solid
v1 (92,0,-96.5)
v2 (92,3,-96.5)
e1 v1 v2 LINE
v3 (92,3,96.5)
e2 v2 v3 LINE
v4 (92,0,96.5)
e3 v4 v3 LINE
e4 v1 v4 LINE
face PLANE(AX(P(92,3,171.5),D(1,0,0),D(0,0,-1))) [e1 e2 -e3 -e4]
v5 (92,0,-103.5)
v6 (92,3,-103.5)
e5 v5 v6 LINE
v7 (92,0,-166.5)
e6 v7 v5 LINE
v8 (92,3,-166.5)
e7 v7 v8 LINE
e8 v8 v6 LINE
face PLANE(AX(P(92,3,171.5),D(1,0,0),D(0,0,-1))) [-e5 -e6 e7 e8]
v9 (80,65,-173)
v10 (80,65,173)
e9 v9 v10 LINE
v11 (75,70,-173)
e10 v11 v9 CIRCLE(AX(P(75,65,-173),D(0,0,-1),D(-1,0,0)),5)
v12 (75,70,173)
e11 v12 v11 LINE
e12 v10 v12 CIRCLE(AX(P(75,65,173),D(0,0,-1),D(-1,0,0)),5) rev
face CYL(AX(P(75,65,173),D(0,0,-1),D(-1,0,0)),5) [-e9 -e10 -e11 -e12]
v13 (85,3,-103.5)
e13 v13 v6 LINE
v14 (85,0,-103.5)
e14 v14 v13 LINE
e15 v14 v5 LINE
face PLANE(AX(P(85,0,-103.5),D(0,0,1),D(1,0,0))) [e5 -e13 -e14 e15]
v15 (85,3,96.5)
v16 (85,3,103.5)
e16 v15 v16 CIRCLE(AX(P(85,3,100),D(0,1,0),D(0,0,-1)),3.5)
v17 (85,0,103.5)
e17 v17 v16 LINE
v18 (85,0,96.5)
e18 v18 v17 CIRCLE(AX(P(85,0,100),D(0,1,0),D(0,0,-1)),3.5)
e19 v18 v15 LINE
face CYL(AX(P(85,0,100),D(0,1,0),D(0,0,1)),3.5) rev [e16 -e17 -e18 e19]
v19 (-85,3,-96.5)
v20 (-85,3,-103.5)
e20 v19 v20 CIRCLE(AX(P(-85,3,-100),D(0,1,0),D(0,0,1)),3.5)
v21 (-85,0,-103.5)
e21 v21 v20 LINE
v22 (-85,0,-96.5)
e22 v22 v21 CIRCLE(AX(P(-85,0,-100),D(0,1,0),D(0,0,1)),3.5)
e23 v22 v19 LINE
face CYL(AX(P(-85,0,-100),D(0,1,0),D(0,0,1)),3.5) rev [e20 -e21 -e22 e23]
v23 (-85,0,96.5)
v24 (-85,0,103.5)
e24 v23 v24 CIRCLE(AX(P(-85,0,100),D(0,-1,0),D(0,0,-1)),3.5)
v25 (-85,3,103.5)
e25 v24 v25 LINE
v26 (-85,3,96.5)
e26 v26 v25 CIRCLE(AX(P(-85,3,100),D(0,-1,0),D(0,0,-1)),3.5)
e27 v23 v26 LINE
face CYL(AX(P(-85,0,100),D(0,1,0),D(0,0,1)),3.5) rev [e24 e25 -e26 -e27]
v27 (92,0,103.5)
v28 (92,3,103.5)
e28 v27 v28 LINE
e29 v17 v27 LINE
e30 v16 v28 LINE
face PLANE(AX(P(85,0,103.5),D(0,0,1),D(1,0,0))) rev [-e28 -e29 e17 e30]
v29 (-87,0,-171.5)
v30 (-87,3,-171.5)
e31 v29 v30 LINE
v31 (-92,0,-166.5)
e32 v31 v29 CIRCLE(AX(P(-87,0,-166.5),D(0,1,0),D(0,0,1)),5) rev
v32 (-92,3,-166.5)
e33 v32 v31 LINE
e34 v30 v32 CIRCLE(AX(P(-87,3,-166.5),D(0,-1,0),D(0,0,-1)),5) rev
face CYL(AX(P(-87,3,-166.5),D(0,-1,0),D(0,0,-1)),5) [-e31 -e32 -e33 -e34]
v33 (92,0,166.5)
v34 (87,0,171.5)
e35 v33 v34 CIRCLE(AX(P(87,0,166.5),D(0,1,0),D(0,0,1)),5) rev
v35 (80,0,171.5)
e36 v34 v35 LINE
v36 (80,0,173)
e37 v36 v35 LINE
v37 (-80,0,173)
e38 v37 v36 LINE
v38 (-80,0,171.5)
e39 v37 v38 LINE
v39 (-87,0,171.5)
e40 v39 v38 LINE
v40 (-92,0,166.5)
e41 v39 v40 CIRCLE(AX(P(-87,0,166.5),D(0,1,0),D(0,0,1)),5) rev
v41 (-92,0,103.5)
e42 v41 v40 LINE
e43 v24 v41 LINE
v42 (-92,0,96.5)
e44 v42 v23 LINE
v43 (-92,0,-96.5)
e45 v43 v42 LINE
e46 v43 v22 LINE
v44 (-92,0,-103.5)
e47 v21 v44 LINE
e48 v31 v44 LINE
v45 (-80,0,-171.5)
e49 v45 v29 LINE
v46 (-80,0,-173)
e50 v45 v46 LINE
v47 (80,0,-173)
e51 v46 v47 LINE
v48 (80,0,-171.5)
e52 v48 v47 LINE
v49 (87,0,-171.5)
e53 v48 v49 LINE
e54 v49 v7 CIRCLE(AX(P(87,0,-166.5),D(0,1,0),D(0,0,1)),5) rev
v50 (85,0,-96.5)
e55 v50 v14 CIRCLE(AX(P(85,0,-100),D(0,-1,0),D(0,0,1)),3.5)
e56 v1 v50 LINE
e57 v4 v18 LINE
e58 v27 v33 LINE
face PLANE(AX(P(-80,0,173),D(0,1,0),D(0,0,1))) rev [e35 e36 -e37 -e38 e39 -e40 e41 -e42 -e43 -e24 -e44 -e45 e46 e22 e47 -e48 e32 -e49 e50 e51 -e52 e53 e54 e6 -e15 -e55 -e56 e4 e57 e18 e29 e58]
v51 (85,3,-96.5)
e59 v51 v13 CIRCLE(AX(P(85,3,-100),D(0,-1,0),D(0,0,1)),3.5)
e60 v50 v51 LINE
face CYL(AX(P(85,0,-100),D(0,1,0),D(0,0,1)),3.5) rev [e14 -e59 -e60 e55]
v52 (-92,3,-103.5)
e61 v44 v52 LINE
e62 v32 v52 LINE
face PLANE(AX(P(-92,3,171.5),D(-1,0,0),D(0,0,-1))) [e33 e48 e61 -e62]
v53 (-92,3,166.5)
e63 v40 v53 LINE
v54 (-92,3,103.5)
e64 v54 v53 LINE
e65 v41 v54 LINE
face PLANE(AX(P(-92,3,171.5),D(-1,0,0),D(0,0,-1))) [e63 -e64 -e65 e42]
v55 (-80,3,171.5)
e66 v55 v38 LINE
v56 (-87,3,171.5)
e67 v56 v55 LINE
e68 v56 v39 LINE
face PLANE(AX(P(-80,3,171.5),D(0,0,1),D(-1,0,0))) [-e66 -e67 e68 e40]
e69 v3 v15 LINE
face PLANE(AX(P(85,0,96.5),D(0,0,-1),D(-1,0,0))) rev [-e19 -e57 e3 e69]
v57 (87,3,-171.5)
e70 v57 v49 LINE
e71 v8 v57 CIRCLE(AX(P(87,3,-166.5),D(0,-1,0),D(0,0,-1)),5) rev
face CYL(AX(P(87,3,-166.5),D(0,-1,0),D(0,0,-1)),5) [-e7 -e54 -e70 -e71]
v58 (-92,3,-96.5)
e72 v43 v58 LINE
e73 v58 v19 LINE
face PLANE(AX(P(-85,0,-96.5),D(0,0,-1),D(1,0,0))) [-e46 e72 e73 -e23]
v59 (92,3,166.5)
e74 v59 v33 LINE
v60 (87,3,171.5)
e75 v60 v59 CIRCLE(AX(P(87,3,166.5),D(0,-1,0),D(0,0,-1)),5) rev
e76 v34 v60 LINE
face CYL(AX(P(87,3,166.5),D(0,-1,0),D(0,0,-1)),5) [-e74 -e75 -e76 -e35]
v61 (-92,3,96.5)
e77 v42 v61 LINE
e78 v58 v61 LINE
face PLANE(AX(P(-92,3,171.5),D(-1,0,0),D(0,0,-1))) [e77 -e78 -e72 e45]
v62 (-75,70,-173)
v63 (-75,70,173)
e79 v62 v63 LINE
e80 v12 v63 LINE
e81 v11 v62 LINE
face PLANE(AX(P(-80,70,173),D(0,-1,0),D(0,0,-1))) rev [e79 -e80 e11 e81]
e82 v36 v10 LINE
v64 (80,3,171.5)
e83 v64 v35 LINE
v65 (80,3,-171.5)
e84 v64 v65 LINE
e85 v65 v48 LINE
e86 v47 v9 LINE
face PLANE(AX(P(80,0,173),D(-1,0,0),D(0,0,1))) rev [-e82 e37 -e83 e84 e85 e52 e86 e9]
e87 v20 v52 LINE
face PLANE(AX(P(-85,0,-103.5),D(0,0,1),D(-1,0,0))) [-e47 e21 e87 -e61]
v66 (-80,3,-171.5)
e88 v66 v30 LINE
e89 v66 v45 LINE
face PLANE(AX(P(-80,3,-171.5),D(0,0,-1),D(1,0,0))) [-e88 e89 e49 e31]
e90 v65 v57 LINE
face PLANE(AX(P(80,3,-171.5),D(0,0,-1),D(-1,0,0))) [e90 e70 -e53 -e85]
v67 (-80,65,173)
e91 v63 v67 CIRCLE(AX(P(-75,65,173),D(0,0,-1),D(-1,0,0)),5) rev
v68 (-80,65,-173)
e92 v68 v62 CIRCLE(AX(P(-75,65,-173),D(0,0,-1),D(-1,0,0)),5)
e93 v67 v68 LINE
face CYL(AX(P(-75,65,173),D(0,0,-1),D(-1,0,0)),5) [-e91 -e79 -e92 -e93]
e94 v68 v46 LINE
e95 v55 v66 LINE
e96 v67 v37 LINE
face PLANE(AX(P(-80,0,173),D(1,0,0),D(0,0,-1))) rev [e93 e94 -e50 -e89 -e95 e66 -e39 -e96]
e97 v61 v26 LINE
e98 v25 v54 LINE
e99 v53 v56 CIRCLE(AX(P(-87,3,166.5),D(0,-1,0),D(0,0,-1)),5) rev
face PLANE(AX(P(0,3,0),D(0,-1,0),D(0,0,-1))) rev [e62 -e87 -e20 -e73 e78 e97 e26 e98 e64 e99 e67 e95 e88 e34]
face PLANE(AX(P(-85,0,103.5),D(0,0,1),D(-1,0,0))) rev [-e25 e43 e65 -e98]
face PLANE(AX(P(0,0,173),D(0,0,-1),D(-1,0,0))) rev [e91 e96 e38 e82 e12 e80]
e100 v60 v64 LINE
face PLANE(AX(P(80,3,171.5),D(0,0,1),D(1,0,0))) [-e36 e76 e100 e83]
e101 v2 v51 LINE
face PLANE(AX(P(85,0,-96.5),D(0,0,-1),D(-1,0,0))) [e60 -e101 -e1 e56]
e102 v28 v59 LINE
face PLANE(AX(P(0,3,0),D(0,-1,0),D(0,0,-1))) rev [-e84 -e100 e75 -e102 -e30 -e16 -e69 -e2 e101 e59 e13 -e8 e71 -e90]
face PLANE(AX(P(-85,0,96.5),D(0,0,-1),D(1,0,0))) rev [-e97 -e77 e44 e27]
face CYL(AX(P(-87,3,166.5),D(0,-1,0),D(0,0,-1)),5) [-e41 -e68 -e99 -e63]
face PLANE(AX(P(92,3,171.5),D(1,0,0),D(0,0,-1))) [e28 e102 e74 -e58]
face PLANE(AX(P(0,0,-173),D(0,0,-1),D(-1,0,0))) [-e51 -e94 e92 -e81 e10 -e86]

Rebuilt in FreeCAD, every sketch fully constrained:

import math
import FreeCAD as App
import Part
import Sketcher

V = App.Vector
Q = App.Units.Quantity


def edges_at(feature, points):
    """Names of the edges that pass closest to the given points."""
    edges = feature.Shape.Edges
    near = lambda p: min(range(len(edges)), key=lambda i: edges[i].distToShape(Part.Vertex(*p))[0])
    return sorted({f"Edge{near(p) + 1}" for p in points})

doc = App.newDocument("Part")
body = doc.addObject("PartDesign::Body", "Body")

# Sketch on XY plane
sketch1 = body.newObject("Sketcher::SketchObject", "Sketch")
sketch1.AttachmentSupport = (doc.getObject("XY_Plane"), [""])
sketch1.MapMode = "FlatFace"
sketch1.addGeometry([
    Part.LineSegment(V(-80, 70, 0), V(-80, 0, 0)),
    Part.LineSegment(V(-80, 0, 0), V(80, 0, 0)),
    Part.LineSegment(V(80, 0, 0), V(80, 70, 0)),
    Part.LineSegment(V(80, 70, 0), V(-80, 70, 0)),
], False)
sketch1.addConstraint([
    Sketcher.Constraint("Coincident", 0, 2, 1, 1),
    Sketcher.Constraint("Coincident", 1, 2, 2, 1),
    Sketcher.Constraint("Coincident", 2, 2, 3, 1),
    Sketcher.Constraint("Coincident", 3, 2, 0, 1),
    Sketcher.Constraint("Vertical", 0),
    Sketcher.Constraint("Horizontal", 1),
    Sketcher.Constraint("Vertical", 2),
    Sketcher.Constraint("Horizontal", 3),
    Sketcher.Constraint("Symmetric", 0, 2, 1, 2, -1, 1),
    Sketcher.Constraint("DistanceX", 1, 1, 1, 2, Q("160 mm")),
    Sketcher.Constraint("DistanceY", 0, 2, 0, 1, Q("70 mm")),
])
pad1 = body.newObject("PartDesign::Pad", "Pad")
pad1.Profile = sketch1
pad1.Length = 346
pad1.Midplane = True

# Sketch on XZ plane
sketch2 = body.newObject("Sketcher::SketchObject", "Sketch001")
sketch2.AttachmentSupport = (doc.getObject("XZ_Plane"), [""])
sketch2.MapMode = "FlatFace"
sketch2.addGeometry([
    Part.LineSegment(V(80, 172, 0), V(80, -172, 0)),
    Part.LineSegment(V(80, -172, 0), V(92, -172, 0)),
    Part.LineSegment(V(92, -172, 0), V(92, 172, 0)),
    Part.LineSegment(V(92, 172, 0), V(80, 172, 0)),
], False)
sketch2.addConstraint([
    Sketcher.Constraint("Coincident", 0, 2, 1, 1),
    Sketcher.Constraint("Coincident", 1, 2, 2, 1),
    Sketcher.Constraint("Coincident", 2, 2, 3, 1),
    Sketcher.Constraint("Coincident", 3, 2, 0, 1),
    Sketcher.Constraint("Vertical", 0),
    Sketcher.Constraint("Horizontal", 1),
    Sketcher.Constraint("Vertical", 2),
    Sketcher.Constraint("Horizontal", 3),
    Sketcher.Constraint("DistanceX", 1, 1, 1, 2, Q("12 mm")),
    Sketcher.Constraint("DistanceY", 0, 2, 0, 1, Q("343 mm")),
    Sketcher.Constraint("DistanceX", -1, 1, 0, 2, Q("80 mm")),
    Sketcher.Constraint("DistanceY", 0, 2, -1, 1, Q("171.5 mm")),
])
pad2 = body.newObject("PartDesign::Pad", "Pad001")
pad2.Profile = sketch2
pad2.Length = 3
pad2.Reversed = True

# Sketch on XZ plane
sketch3 = body.newObject("Sketcher::SketchObject", "Sketch002")
sketch3.AttachmentSupport = (doc.getObject("XZ_Plane"), [""])
sketch3.MapMode = "FlatFace"
sketch3.AttachmentOffset = App.Placement(V(0, 0, -3), App.Rotation())
sketch3.addGeometry([
    Part.LineSegment(V(85, 103.5, 0), V(92, 103.5, 0)),
    Part.LineSegment(V(92, 103.5, 0), V(92, 96.5, 0)),
    Part.LineSegment(V(92, 96.5, 0), V(85, 96.5, 0)),
    Part.ArcOfCircle(Part.Circle(V(85, 100, 0), V(0, 0, 1), 3.5), math.radians(90), math.radians(270)),
], False)
sketch3.addConstraint([
    Sketcher.Constraint("Coincident", 0, 2, 1, 1),
    Sketcher.Constraint("Coincident", 1, 2, 2, 1),
    Sketcher.Constraint("Tangent", 2, 2, 3, 2),
    Sketcher.Constraint("Tangent", 3, 1, 0, 1),
    Sketcher.Constraint("Horizontal", 0),
    Sketcher.Constraint("Vertical", 1),
    Sketcher.Constraint("Horizontal", 2),
    Sketcher.Constraint("Equal", 2, 1),
    Sketcher.Constraint("Radius", 3, Q("3.5 mm")),
    Sketcher.Constraint("DistanceX", -1, 1, 3, 3, Q("85 mm")),
    Sketcher.Constraint("DistanceY", -1, 1, 3, 3, Q("100 mm")),
])
pocket1 = body.newObject("PartDesign::Pocket", "Pocket")
pocket1.Profile = sketch3
pocket1.Type = "ThroughAll"
pocket1.Reversed = True
doc.recompute()

mirrored = body.newObject("PartDesign::Mirrored", "Mirrored")
mirrored.Originals = [pocket1]
mirrored.MirrorPlane = (doc.getObject("XY_Plane"), [""])
body.Tip = mirrored
body2 = doc.addObject("PartDesign::Body", "Body001")
doc.recompute()

body2.BaseFeature = body
doc.recompute()

mirroring = doc.addObject("Part::Mirroring", "Mirroring")
mirroring.Source = body
mirroring.Base = V(0, 0, 0)
mirroring.Normal = V(1, 0, 0)
body3 = doc.addObject("PartDesign::Body", "Body002")
body3.BaseFeature = mirroring
boolean = body2.newObject("PartDesign::Boolean", "Boolean")
boolean.Type = "Fuse"
boolean.addObjects([body3])
doc.recompute()

fillet = body2.newObject("PartDesign::Fillet", "Fillet")
fillet.Base = (boolean, edges_at(boolean, [
    (92, 1.5, 171.5),
    (92, 1.5, -171.5),
    (-92, 1.5, -171.5),
    (-92, 1.5, 171.5),
    (-80, 70, 0),
    (80, 70, 0),
]))
fillet.Radius = 5
mirroring.Visibility = False

doc.recompute()
